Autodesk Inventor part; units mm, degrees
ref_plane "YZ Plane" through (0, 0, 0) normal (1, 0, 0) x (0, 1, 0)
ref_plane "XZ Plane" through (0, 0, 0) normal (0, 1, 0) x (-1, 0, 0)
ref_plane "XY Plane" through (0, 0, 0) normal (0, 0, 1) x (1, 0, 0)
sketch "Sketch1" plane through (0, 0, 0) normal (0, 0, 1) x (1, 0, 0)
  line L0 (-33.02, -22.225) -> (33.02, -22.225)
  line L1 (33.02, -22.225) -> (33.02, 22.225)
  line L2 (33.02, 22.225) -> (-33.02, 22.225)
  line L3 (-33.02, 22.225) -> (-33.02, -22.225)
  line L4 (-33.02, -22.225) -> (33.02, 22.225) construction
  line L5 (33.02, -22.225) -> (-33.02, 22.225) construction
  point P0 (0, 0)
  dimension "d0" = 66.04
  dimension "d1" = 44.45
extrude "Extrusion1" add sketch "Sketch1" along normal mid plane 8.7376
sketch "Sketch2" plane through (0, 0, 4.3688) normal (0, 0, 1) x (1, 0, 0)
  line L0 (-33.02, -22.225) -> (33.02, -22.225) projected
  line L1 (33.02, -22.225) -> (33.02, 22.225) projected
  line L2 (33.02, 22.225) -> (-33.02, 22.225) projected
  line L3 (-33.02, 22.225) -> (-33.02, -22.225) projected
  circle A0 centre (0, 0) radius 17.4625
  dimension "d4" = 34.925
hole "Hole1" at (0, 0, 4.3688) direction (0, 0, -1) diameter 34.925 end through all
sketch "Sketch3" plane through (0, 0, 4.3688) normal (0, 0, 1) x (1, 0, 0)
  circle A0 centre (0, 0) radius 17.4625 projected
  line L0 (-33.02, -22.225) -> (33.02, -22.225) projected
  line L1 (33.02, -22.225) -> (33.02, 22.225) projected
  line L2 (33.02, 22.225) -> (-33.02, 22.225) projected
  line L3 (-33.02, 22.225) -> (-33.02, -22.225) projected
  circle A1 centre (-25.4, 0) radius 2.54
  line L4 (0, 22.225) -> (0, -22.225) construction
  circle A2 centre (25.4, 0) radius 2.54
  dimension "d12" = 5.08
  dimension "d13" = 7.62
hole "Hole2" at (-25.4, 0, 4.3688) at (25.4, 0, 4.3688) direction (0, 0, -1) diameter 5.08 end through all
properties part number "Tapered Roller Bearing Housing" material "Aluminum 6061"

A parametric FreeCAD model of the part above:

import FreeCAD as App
import Part
import Sketcher
from FreeCAD import Vector
Q = App.Units.Quantity


def add_polygon(sketch, points):
    """Adds a closed chain of lines whose ends are joined by coincident constraints."""
    first, n = sketch.GeometryCount, len(points)
    for a, b in zip(points, points[1:] + points[:1]):
        sketch.addGeometry(Part.LineSegment(App.Vector(*a, 0), App.Vector(*b, 0)), False)
    for i in range(n):
        sketch.addConstraint(Sketcher.Constraint("Coincident", first + i, 2, first + (i + 1) % n, 1))

doc = App.newDocument("Part")
body = doc.addObject("PartDesign::Body", "Body")

# Sketch on XY plane
sketch1 = body.newObject("Sketcher::SketchObject", "Sketch")
sketch1.AttachmentSupport = (doc.getObject("XY_Plane"), [""])
sketch1.MapMode = "FlatFace"
add_polygon(sketch1, [(-33, 22), (-33, -22), (33, -22), (33, 22)])  # lines 0-3
sketch1.addConstraint(Sketcher.Constraint("Vertical", 0))
sketch1.addConstraint(Sketcher.Constraint("Horizontal", 1))
sketch1.addConstraint(Sketcher.Constraint("Vertical", 2))
sketch1.addConstraint(Sketcher.Constraint("Horizontal", 3))
sketch1.addConstraint(Sketcher.Constraint("Symmetric", 0, 2, 2, 2, -1, 1))
sketch1.addConstraint(Sketcher.Constraint("DistanceX", 1, 1, 1, 2, Q("2.6 in")))
sketch1.addConstraint(Sketcher.Constraint("DistanceY", 0, 2, 0, 1, Q("1.75 in")))
pad1 = body.newObject("PartDesign::Pad", "Pad")
pad1.Profile = sketch1
pad1.Length = Q("0.344 in")
pad1.Midplane = True

# Sketch on XY plane
sketch2 = body.newObject("Sketcher::SketchObject", "Sketch001")
sketch2.AttachmentSupport = (doc.getObject("XY_Plane"), [""])
sketch2.MapMode = "FlatFace"
sketch2.AttachmentOffset = App.Placement(Vector(0, 0, 0.172 * 25.4), App.Rotation())
sketch2.addGeometry(Part.Circle(Vector(0, 0, 0), Vector(0, 0, 1), 17), False)
sketch2.addConstraint(Sketcher.Constraint("Coincident", 0, 3, -1, 1))
sketch2.addConstraint(Sketcher.Constraint("Diameter", 0, Q("1.375 in")))
doc.recompute()
hole = body.newObject("PartDesign::Hole", "Hole")
hole.Profile = sketch2
hole.ThreadType = "None"
hole.Diameter = Q("1.375 in")
hole.DepthType = "ThroughAll"

# Sketch on XY plane
sketch3 = body.newObject("Sketcher::SketchObject", "Sketch002")
sketch3.AttachmentSupport = (doc.getObject("XY_Plane"), [""])
sketch3.MapMode = "FlatFace"
sketch3.AttachmentOffset = App.Placement(Vector(0, 0, 0.172 * 25.4), App.Rotation())
sketch3.addGeometry(Part.Circle(Vector(-25.4, 0, 0), Vector(0, 0, 1), 2.5), False)
sketch3.addGeometry(Part.Circle(Vector(25.4, 0, 0), Vector(0, 0, 1), 2.5), False)
sketch3.addConstraint(Sketcher.Constraint("Equal", 0, 1))
sketch3.addConstraint(Sketcher.Constraint("Symmetric", 0, 3, 1, 3, -1, 1))
sketch3.addConstraint(Sketcher.Constraint("PointOnObject", 0, 3, -1))
sketch3.addConstraint(Sketcher.Constraint("Diameter", 0, Q("0.2 in")))
sketch3.addConstraint(Sketcher.Constraint("DistanceX", 0, 3, -1, 1, Q("1 in")))
doc.recompute()
hole2 = body.newObject("PartDesign::Hole", "Hole001")
hole2.Profile = sketch3
hole2.ThreadType = "None"
hole2.Diameter = Q("0.2 in")
hole2.DepthType = "ThroughAll"

doc.recompute()
